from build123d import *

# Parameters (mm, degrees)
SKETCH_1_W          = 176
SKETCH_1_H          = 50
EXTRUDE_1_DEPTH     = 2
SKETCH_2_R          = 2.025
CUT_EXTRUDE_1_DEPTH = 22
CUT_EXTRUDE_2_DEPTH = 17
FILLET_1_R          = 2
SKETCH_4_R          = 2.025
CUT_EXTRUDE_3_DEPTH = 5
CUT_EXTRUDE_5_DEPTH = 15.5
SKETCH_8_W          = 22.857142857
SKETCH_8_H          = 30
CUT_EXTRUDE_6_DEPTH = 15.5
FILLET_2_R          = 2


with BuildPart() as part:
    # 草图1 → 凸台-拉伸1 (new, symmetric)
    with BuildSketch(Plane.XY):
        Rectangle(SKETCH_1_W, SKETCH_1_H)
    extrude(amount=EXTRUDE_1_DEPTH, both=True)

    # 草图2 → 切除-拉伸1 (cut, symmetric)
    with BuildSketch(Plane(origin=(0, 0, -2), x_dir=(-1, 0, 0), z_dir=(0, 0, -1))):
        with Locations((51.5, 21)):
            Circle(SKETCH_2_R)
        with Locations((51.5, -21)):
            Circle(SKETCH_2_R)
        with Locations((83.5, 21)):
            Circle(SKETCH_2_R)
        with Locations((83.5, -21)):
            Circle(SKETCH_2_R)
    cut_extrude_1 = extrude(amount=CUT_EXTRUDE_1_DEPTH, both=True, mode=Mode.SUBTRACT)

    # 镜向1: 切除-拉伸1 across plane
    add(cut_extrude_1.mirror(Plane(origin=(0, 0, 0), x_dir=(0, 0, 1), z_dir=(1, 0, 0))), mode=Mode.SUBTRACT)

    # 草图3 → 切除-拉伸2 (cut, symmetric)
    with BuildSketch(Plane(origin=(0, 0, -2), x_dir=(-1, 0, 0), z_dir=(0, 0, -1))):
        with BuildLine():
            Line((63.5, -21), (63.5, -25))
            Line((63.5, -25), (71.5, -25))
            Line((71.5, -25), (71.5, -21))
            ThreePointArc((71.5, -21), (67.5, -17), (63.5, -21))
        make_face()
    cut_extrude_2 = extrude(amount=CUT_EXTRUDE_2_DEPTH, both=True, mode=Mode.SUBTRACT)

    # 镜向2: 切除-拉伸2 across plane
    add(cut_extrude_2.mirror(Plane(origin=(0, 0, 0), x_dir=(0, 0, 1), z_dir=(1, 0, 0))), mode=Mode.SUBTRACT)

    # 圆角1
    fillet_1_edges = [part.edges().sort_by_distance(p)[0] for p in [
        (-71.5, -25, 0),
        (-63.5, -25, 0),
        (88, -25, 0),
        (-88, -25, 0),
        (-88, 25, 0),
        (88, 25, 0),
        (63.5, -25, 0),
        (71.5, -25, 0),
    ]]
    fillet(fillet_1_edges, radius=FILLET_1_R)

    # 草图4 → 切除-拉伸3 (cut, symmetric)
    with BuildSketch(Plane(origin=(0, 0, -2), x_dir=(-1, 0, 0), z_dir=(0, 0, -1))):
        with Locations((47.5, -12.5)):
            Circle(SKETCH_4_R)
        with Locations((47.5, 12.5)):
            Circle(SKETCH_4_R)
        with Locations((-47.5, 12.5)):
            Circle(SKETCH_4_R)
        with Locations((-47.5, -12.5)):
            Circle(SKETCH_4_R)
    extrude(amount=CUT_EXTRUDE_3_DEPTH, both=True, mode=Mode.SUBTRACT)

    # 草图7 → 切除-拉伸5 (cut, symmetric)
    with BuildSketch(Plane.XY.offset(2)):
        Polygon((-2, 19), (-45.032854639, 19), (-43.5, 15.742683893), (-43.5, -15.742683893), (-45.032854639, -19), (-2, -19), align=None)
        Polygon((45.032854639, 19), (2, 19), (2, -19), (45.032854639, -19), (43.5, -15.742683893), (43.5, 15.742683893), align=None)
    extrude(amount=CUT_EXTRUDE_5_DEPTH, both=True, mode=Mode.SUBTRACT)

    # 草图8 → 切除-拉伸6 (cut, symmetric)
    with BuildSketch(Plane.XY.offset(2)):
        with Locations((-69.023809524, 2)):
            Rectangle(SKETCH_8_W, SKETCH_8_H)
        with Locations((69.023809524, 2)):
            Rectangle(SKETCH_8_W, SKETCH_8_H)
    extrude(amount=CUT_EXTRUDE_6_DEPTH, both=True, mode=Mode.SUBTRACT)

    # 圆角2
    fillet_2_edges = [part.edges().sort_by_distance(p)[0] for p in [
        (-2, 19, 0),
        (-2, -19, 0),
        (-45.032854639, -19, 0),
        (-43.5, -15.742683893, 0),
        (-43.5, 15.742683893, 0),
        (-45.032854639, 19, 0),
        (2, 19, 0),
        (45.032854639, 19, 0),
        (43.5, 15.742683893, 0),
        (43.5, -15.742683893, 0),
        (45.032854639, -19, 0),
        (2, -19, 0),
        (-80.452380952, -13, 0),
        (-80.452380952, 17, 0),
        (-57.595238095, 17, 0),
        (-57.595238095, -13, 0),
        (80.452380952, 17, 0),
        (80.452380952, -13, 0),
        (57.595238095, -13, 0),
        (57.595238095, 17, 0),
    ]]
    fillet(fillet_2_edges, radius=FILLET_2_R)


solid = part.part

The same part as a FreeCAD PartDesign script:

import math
import FreeCAD as App
import Part
import Sketcher

V = App.Vector


def edges_at(feature, points):
    """Names of the edges that pass closest to the given points."""
    edges = feature.Shape.Edges
    near = lambda p: min(range(len(edges)), key=lambda i: edges[i].distToShape(Part.Vertex(*p))[0])
    return sorted({f"Edge{near(p) + 1}" for p in points})

doc = App.newDocument("Part")
params = doc.addObject("Spreadsheet::Sheet", "Params")
for row, (alias, value) in enumerate([
    ("sketch1_width", "176 mm"),
    ("sketch1_height", "50 mm"),
    ("pad1_length", "4 mm"),
    ("sketch2_diameter", "4.05 mm"),
    ("pocket1_length", "44 mm"),
    ("sketch3_radius", "4 mm"),
    ("sketch3_height", "4 mm"),
    ("pocket2_length", "34 mm"),
    ("fillet_radius", "2 mm"),
    ("sketch4_diameter", "4.05 mm"),
    ("pocket3_length", "10 mm"),
    ("sketch5_height", "38 mm"),
    ("pocket4_length", "31 mm"),
    ("sketch6_height", "30 mm"),
    ("pocket5_length", "31 mm"),
    ("fillet2_radius", "2 mm"),
], start=1):
    params.set(f"A{row}", alias)
    params.set(f"B{row}", "=" + value)
    params.setAlias(f"B{row}", alias)

body = doc.addObject("PartDesign::Body", "Body")

# Sketch on XY plane
sketch1 = body.newObject("Sketcher::SketchObject", "Sketch")
sketch1.AttachmentSupport = (doc.getObject("XY_Plane"), [""])
sketch1.MapMode = "FlatFace"
sketch1.addGeometry(Part.LineSegment(V(-88, 25, 0), V(-88, -25, 0)), False)
sketch1.addGeometry(Part.LineSegment(V(-88, -25, 0), V(88, -25, 0)), False)
sketch1.addGeometry(Part.LineSegment(V(88, -25, 0), V(88, 25, 0)), False)
sketch1.addGeometry(Part.LineSegment(V(88, 25, 0), V(-88, 25, 0)), False)
sketch1.addConstraint(Sketcher.Constraint("Coincident", 0, 2, 1, 1))
sketch1.addConstraint(Sketcher.Constraint("Coincident", 1, 2, 2, 1))
sketch1.addConstraint(Sketcher.Constraint("Coincident", 2, 2, 3, 1))
sketch1.addConstraint(Sketcher.Constraint("Coincident", 3, 2, 0, 1))
sketch1.addConstraint(Sketcher.Constraint("Vertical", 0))
sketch1.addConstraint(Sketcher.Constraint("Horizontal", 1))
sketch1.addConstraint(Sketcher.Constraint("Vertical", 2))
sketch1.addConstraint(Sketcher.Constraint("Horizontal", 3))
sketch1.addConstraint(Sketcher.Constraint("Symmetric", 0, 2, 2, 2, -1, 1))
sketch1.addConstraint(Sketcher.Constraint("DistanceX", 1, 1, 1, 2, 176.0))
sketch1.addConstraint(Sketcher.Constraint("DistanceY", 0, 2, 0, 1, 50.0))
sketch1.setExpression("Constraints[9]", "Params.sketch1_width")
sketch1.setExpression("Constraints[10]", "Params.sketch1_height")
pad1 = body.newObject("PartDesign::Pad", "Pad")
pad1.Profile = sketch1
pad1.setExpression("Length", "Params.pad1_length")
pad1.Midplane = True

# Sketch on XY plane
sketch2 = body.newObject("Sketcher::SketchObject", "Sketch001")
sketch2.AttachmentSupport = (doc.getObject("XY_Plane"), [""])
sketch2.MapMode = "FlatFace"
sketch2.AttachmentOffset = App.Placement(V(0, 0, -2), App.Rotation())
sketch2.addGeometry(Part.Circle(V(-51.5, 21, 0), V(0, 0, 1), 2.025), False)
sketch2.addGeometry(Part.Circle(V(-51.5, -21, 0), V(0, 0, 1), 2.025), False)
sketch2.addGeometry(Part.Circle(V(-83.5, 21, 0), V(0, 0, 1), 2.025), False)
sketch2.addGeometry(Part.Circle(V(-83.5, -21, 0), V(0, 0, 1), 2.025), False)
sketch2.addConstraint(Sketcher.Constraint("Equal", 0, 1))
sketch2.addConstraint(Sketcher.Constraint("Equal", 1, 2))
sketch2.addConstraint(Sketcher.Constraint("Equal", 2, 3))
sketch2.addConstraint(Sketcher.Constraint("Symmetric", 0, 3, 1, 3, -1))
sketch2.addConstraint(Sketcher.Constraint("Symmetric", 2, 3, 3, 3, -1))
sketch2.addConstraint(Sketcher.Constraint("Horizontal", 0, 3, 2, 3))
sketch2.addConstraint(Sketcher.Constraint("Diameter", 0, 4.05))
sketch2.addConstraint(Sketcher.Constraint("DistanceY", -1, 1, 0, 3, 21.0))
sketch2.addConstraint(Sketcher.Constraint("DistanceX", 2, 3, 0, 3, 32.0))
sketch2.addConstraint(Sketcher.Constraint("DistanceX", 0, 3, -1, 1, 51.5))
sketch2.setExpression("Constraints[6]", "Params.sketch2_diameter")
pocket1 = body.newObject("PartDesign::Pocket", "Pocket")
pocket1.Profile = sketch2
pocket1.setExpression("Length", "Params.pocket1_length")
pocket1.Midplane = True
doc.recompute()

mirrored = body.newObject("PartDesign::Mirrored", "Mirrored")
mirrored.Originals = [pocket1]
mirrored.MirrorPlane = (doc.getObject("YZ_Plane"), [""])
body.Tip = mirrored

# Sketch on XY plane
sketch3 = body.newObject("Sketcher::SketchObject", "Sketch002")
sketch3.AttachmentSupport = (doc.getObject("XY_Plane"), [""])
sketch3.MapMode = "FlatFace"
sketch3.AttachmentOffset = App.Placement(V(0, 0, -2), App.Rotation())
sketch3.addGeometry(Part.LineSegment(V(-63.5, -21, 0), V(-63.5, -25, 0)), False)
sketch3.addGeometry(Part.LineSegment(V(-63.5, -25, 0), V(-71.5, -25, 0)), False)
sketch3.addGeometry(Part.LineSegment(V(-71.5, -25, 0), V(-71.5, -21, 0)), False)
sketch3.addGeometry(Part.ArcOfCircle(Part.Circle(V(-67.5, -21, 0), V(0, 0, 1), 4), math.radians(0), math.radians(180)), False)
sketch3.addConstraint(Sketcher.Constraint("Coincident", 0, 2, 1, 1))
sketch3.addConstraint(Sketcher.Constraint("Coincident", 1, 2, 2, 1))
sketch3.addConstraint(Sketcher.Constraint("Tangent", 2, 2, 3, 2))
sketch3.addConstraint(Sketcher.Constraint("Tangent", 3, 1, 0, 1))
sketch3.addConstraint(Sketcher.Constraint("Vertical", 0))
sketch3.addConstraint(Sketcher.Constraint("Horizontal", 1))
sketch3.addConstraint(Sketcher.Constraint("Vertical", 2))
sketch3.addConstraint(Sketcher.Constraint("Radius", 3, 4.0))
sketch3.addConstraint(Sketcher.Constraint("DistanceY", 0, 2, 0, 1, 4.0))
sketch3.addConstraint(Sketcher.Constraint("DistanceY", 3, 3, -1, 1, 21.0))
sketch3.addConstraint(Sketcher.Constraint("DistanceX", 3, 3, -1, 1, 67.5))
sketch3.setExpression("Constraints[7]", "Params.sketch3_radius")
sketch3.setExpression("Constraints[8]", "Params.sketch3_height")
pocket2 = body.newObject("PartDesign::Pocket", "Pocket001")
pocket2.Profile = sketch3
pocket2.setExpression("Length", "Params.pocket2_length")
pocket2.Midplane = True
doc.recompute()

mirrored2 = body.newObject("PartDesign::Mirrored", "Mirrored001")
mirrored2.Originals = [pocket2]
mirrored2.MirrorPlane = (doc.getObject("YZ_Plane"), [""])
body.Tip = mirrored2
doc.recompute()

fillet = body.newObject("PartDesign::Fillet", "Fillet")
fillet.Base = (mirrored2, edges_at(mirrored2, [
    (-71.5, -25, 0),
    (-63.5, -25, 0),
    (88, -25, 0),
    (-88, -25, 0),
    (-88, 25, 0),
    (88, 25, 0),
    (63.5, -25, 0),
    (71.5, -25, 0),
]))
fillet.setExpression("Radius", "Params.fillet_radius")

# Sketch on XY plane
sketch4 = body.newObject("Sketcher::SketchObject", "Sketch003")
sketch4.AttachmentSupport = (doc.getObject("XY_Plane"), [""])
sketch4.MapMode = "FlatFace"
sketch4.AttachmentOffset = App.Placement(V(0, 0, -2), App.Rotation())
sketch4.addGeometry(Part.Circle(V(-47.5, -12.5, 0), V(0, 0, 1), 2.025), False)
sketch4.addGeometry(Part.Circle(V(-47.5, 12.5, 0), V(0, 0, 1), 2.025), False)
sketch4.addGeometry(Part.Circle(V(47.5, 12.5, 0), V(0, 0, 1), 2.025), False)
sketch4.addGeometry(Part.Circle(V(47.5, -12.5, 0), V(0, 0, 1), 2.025), False)
sketch4.addConstraint(Sketcher.Constraint("Equal", 0, 1))
sketch4.addConstraint(Sketcher.Constraint("Equal", 1, 2))
sketch4.addConstraint(Sketcher.Constraint("Equal", 2, 3))
sketch4.addConstraint(Sketcher.Constraint("Symmetric", 0, 3, 2, 3, -1, 1))
sketch4.addConstraint(Sketcher.Constraint("Symmetric", 1, 3, 3, 3, -1, 1))
sketch4.addConstraint(Sketcher.Constraint("Symmetric", 1, 3, 2, 3, -2))
sketch4.addConstraint(Sketcher.Constraint("Diameter", 0, 4.05))
sketch4.addConstraint(Sketcher.Constraint("DistanceY", 0, 3, 1, 3, 25.0))
sketch4.addConstraint(Sketcher.Constraint("DistanceX", 1, 3, 2, 3, 95.0))
sketch4.setExpression("Constraints[6]", "Params.sketch4_diameter")
pocket3 = body.newObject("PartDesign::Pocket", "Pocket002")
pocket3.Profile = sketch4
pocket3.setExpression("Length", "Params.pocket3_length")
pocket3.Midplane = True

# Sketch on XY plane
sketch5 = body.newObject("Sketcher::SketchObject", "Sketch004")
sketch5.AttachmentSupport = (doc.getObject("XY_Plane"), [""])
sketch5.MapMode = "FlatFace"
sketch5.AttachmentOffset = App.Placement(V(0, 0, 2), App.Rotation())
sketch5.addGeometry(Part.LineSegment(V(-2, 19, 0), V(-45.032855, 19, 0)), False)
sketch5.addGeometry(Part.LineSegment(V(-45.032855, 19, 0), V(-43.5, 15.742684, 0)), False)
sketch5.addGeometry(Part.LineSegment(V(-43.5, 15.742684, 0), V(-43.5, -15.742684, 0)), False)
sketch5.addGeometry(Part.LineSegment(V(-43.5, -15.742684, 0), V(-45.032855, -19, 0)), False)
sketch5.addGeometry(Part.LineSegment(V(-45.032855, -19, 0), V(-2, -19, 0)), False)
sketch5.addGeometry(Part.LineSegment(V(-2, -19, 0), V(-2, 19, 0)), False)
sketch5.addGeometry(Part.LineSegment(V(45.032855, 19, 0), V(2, 19, 0)), False)
sketch5.addGeometry(Part.LineSegment(V(2, 19, 0), V(2, -19, 0)), False)
sketch5.addGeometry(Part.LineSegment(V(2, -19, 0), V(45.032855, -19, 0)), False)
sketch5.addGeometry(Part.LineSegment(V(45.032855, -19, 0), V(43.5, -15.742684, 0)), False)
sketch5.addGeometry(Part.LineSegment(V(43.5, -15.742684, 0), V(43.5, 15.742684, 0)), False)
sketch5.addGeometry(Part.LineSegment(V(43.5, 15.742684, 0), V(45.032855, 19, 0)), False)
sketch5.addConstraint(Sketcher.Constraint("Coincident", 0, 2, 1, 1))
sketch5.addConstraint(Sketcher.Constraint("Coincident", 1, 2, 2, 1))
sketch5.addConstraint(Sketcher.Constraint("Coincident", 2, 2, 3, 1))
sketch5.addConstraint(Sketcher.Constraint("Coincident", 3, 2, 4, 1))
sketch5.addConstraint(Sketcher.Constraint("Coincident", 4, 2, 5, 1))
sketch5.addConstraint(Sketcher.Constraint("Coincident", 5, 2, 0, 1))
sketch5.addConstraint(Sketcher.Constraint("Coincident", 6, 2, 7, 1))
sketch5.addConstraint(Sketcher.Constraint("Coincident", 7, 2, 8, 1))
sketch5.addConstraint(Sketcher.Constraint("Coincident", 8, 2, 9, 1))
sketch5.addConstraint(Sketcher.Constraint("Coincident", 9, 2, 10, 1))
sketch5.addConstraint(Sketcher.Constraint("Coincident", 10, 2, 11, 1))
sketch5.addConstraint(Sketcher.Constraint("Coincident", 11, 2, 6, 1))
sketch5.addConstraint(Sketcher.Constraint("Horizontal", 0))
sketch5.addConstraint(Sketcher.Constraint("Vertical", 2))
sketch5.addConstraint(Sketcher.Constraint("Horizontal", 4))
sketch5.addConstraint(Sketcher.Constraint("Vertical", 5))
sketch5.addConstraint(Sketcher.Constraint("Horizontal", 6))
sketch5.addConstraint(Sketcher.Constraint("Vertical", 7))
sketch5.addConstraint(Sketcher.Constraint("Horizontal", 8))
sketch5.addConstraint(Sketcher.Constraint("Vertical", 10))
sketch5.addConstraint(Sketcher.Constraint("Symmetric", 4, 2, 6, 2, -1, 1))
sketch5.addConstraint(Sketcher.Constraint("Symmetric", 0, 2, 8, 2, -1, 1))
sketch5.addConstraint(Sketcher.Constraint("Symmetric", 1, 2, 9, 2, -1, 1))
sketch5.addConstraint(Sketcher.Constraint("Symmetric", 3, 2, 8, 2, -2))
sketch5.addConstraint(Sketcher.Constraint("Parallel", 3, 11))
sketch5.addConstraint(Sketcher.Constraint("Horizontal", 2, 2, 9, 2))
sketch5.addConstraint(Sketcher.Constraint("Horizontal", 1, 2, 10, 2))
sketch5.addConstraint(Sketcher.Constraint("DistanceY", 5, 1, 5, 2, 38.0))
sketch5.addConstraint(Sketcher.Constraint("DistanceX", 4, 2, -1, 1, 2.0))
sketch5.addConstraint(Sketcher.Constraint("DistanceX", 1, 2, -1, 1, 43.5))
sketch5.addConstraint(Sketcher.Constraint("DistanceX", 0, 2, 0, 1, 43.032855))
sketch5.addConstraint(Sketcher.Constraint("DistanceY", 2, 2, 2, 1, 31.485368))
sketch5.setExpression("Constraints[27]", "Params.sketch5_height")
pocket4 = body.newObject("PartDesign::Pocket", "Pocket003")
pocket4.Profile = sketch5
pocket4.setExpression("Length", "Params.pocket4_length")
pocket4.Midplane = True

# Sketch on XY plane
sketch6 = body.newObject("Sketcher::SketchObject", "Sketch005")
sketch6.AttachmentSupport = (doc.getObject("XY_Plane"), [""])
sketch6.MapMode = "FlatFace"
sketch6.AttachmentOffset = App.Placement(V(0, 0, 2), App.Rotation())
sketch6.addGeometry(Part.LineSegment(V(-80.452381, 17, 0), V(-80.452381, -13, 0)), False)
sketch6.addGeometry(Part.LineSegment(V(-80.452381, -13, 0), V(-57.595238, -13, 0)), False)
sketch6.addGeometry(Part.LineSegment(V(-57.595238, -13, 0), V(-57.595238, 17, 0)), False)
sketch6.addGeometry(Part.LineSegment(V(-57.595238, 17, 0), V(-80.452381, 17, 0)), False)
sketch6.addGeometry(Part.LineSegment(V(57.595238, 17, 0), V(57.595238, -13, 0)), False)
sketch6.addGeometry(Part.LineSegment(V(57.595238, -13, 0), V(80.452381, -13, 0)), False)
sketch6.addGeometry(Part.LineSegment(V(80.452381, -13, 0), V(80.452381, 17, 0)), False)
sketch6.addGeometry(Part.LineSegment(V(80.452381, 17, 0), V(57.595238, 17, 0)), False)
sketch6.addConstraint(Sketcher.Constraint("Coincident", 0, 2, 1, 1))
sketch6.addConstraint(Sketcher.Constraint("Coincident", 1, 2, 2, 1))
sketch6.addConstraint(Sketcher.Constraint("Coincident", 2, 2, 3, 1))
sketch6.addConstraint(Sketcher.Constraint("Coincident", 3, 2, 0, 1))
sketch6.addConstraint(Sketcher.Constraint("Coincident", 4, 2, 5, 1))
sketch6.addConstraint(Sketcher.Constraint("Coincident", 5, 2, 6, 1))
sketch6.addConstraint(Sketcher.Constraint("Coincident", 6, 2, 7, 1))
sketch6.addConstraint(Sketcher.Constraint("Coincident", 7, 2, 4, 1))
sketch6.addConstraint(Sketcher.Constraint("Vertical", 0))
sketch6.addConstraint(Sketcher.Constraint("Horizontal", 1))
sketch6.addConstraint(Sketcher.Constraint("Vertical", 2))
sketch6.addConstraint(Sketcher.Constraint("Horizontal", 3))
sketch6.addConstraint(Sketcher.Constraint("Vertical", 4))
sketch6.addConstraint(Sketcher.Constraint("Horizontal", 5))
sketch6.addConstraint(Sketcher.Constraint("Vertical", 6))
sketch6.addConstraint(Sketcher.Constraint("Horizontal", 7))
sketch6.addConstraint(Sketcher.Constraint("Symmetric", 1, 2, 4, 2, -2))
sketch6.addConstraint(Sketcher.Constraint("Symmetric", 3, 2, 6, 2, -2))
sketch6.addConstraint(Sketcher.Constraint("DistanceY", 0, 2, 0, 1, 30.0))
sketch6.addConstraint(Sketcher.Constraint("DistanceY", 0, 2, -1, 1, 13.0))
sketch6.addConstraint(Sketcher.Constraint("DistanceX", 1, 1, 1, 2, 22.857143))
sketch6.addConstraint(Sketcher.Constraint("DistanceX", 0, 2, -1, 1, 80.452381))
sketch6.setExpression("Constraints[18]", "Params.sketch6_height")
pocket5 = body.newObject("PartDesign::Pocket", "Pocket004")
pocket5.Profile = sketch6
pocket5.setExpression("Length", "Params.pocket5_length")
pocket5.Midplane = True
doc.recompute()

fillet2 = body.newObject("PartDesign::Fillet", "Fillet001")
fillet2.Base = (pocket5, edges_at(pocket5, [
    (-2, 19, 0),
    (-2, -19, 0),
    (-45.033, -19, 0),
    (-43.5, -15.743, 0),
    (-43.5, 15.743, 0),
    (-45.033, 19, 0),
    (2, 19, 0),
    (45.033, 19, 0),
    (43.5, 15.743, 0),
    (43.5, -15.743, 0),
    (45.033, -19, 0),
    (2, -19, 0),
    (-80.452, -13, 0),
    (-80.452, 17, 0),
    (-57.595, 17, 0),
    (-57.595, -13, 0),
    (80.452, 17, 0),
    (80.452, -13, 0),
    (57.595, -13, 0),
    (57.595, 17, 0),
]))
fillet2.setExpression("Radius", "Params.fillet2_radius")

doc.recompute()
